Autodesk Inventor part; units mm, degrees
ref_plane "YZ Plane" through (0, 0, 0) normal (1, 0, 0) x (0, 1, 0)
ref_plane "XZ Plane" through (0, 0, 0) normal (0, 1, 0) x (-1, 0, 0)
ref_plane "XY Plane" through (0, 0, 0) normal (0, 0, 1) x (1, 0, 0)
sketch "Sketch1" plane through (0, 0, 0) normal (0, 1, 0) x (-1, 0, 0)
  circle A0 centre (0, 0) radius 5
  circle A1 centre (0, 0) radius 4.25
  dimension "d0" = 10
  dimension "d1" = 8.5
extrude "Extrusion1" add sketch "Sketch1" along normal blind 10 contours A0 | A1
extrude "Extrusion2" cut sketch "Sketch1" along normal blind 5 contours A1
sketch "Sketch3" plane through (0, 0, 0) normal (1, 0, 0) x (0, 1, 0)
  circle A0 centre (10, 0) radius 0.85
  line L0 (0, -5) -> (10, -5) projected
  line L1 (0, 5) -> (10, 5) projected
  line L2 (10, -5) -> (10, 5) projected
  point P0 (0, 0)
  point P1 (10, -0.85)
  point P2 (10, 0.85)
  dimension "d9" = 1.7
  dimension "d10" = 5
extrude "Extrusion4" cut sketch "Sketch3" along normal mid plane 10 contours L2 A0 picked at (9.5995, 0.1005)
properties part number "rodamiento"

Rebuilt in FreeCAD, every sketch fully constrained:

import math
import FreeCAD as App
import Part
import Sketcher
Q = App.Units.Quantity

doc = App.newDocument("Part")
body = doc.addObject("PartDesign::Body", "Body")

sketch1 = doc.addObject("Sketcher::SketchObject", "Sketch")
body.addObject(sketch1)
sketch1.AttachmentSupport = (doc.XZ_Plane, [""])
sketch1.MapMode = "FlatFace"
sketch1.addGeometry(Part.Circle(App.Vector(0, 0, 0), App.Vector(0, 0, 1), 5), False)
sketch1.addConstraint([
    Sketcher.Constraint("Coincident", 0, 3, -1, 1),
    Sketcher.Constraint("Diameter", 0, Q("10 mm")),
])
pad1 = doc.addObject("PartDesign::Pad", "Pad")
body.addObject(pad1)
pad1.Profile = sketch1
pad1.Length = 10
pad1.Reversed = True

sketch2 = doc.addObject("Sketcher::SketchObject", "Sketch001")
body.addObject(sketch2)
sketch2.AttachmentSupport = (doc.XZ_Plane, [""])
sketch2.MapMode = "FlatFace"
sketch2.addGeometry(Part.Circle(App.Vector(0, 0, 0), App.Vector(0, 0, 1), 4.25), False)
sketch2.addConstraint([
    Sketcher.Constraint("Coincident", 0, 3, -1, 1),
    Sketcher.Constraint("Diameter", 0, Q("8.5 mm")),
])
pocket1 = doc.addObject("PartDesign::Pocket", "Pocket")
body.addObject(pocket1)
pocket1.Profile = sketch2
pocket1.Length = 5

sketch3 = doc.addObject("Sketcher::SketchObject", "Sketch002")
body.addObject(sketch3)
sketch3.AttachmentSupport = (doc.YZ_Plane, [""])
sketch3.MapMode = "FlatFace"
sketch3.addGeometry([
    Part.LineSegment(App.Vector(10, -0.85, 0), App.Vector(10, 0.85, 0)),
    Part.ArcOfCircle(Part.Circle(App.Vector(10, 0, 0), App.Vector(0, 0, 1), 0.85), math.radians(90), math.radians(270)),
], False)
sketch3.addConstraint([
    Sketcher.Constraint("Coincident", 0, 1, 1, 2),
    Sketcher.Constraint("Coincident", 1, 1, 0, 2),
    Sketcher.Constraint("Vertical", 0),
    Sketcher.Constraint("PointOnObject", 1, 3, -1),
    Sketcher.Constraint("Vertical", 1, 3, 0, 1),
    Sketcher.Constraint("Radius", 1, Q("0.85 mm")),
    Sketcher.Constraint("DistanceX", -1, 1, 1, 3, Q("10 mm")),
])
pocket2 = doc.addObject("PartDesign::Pocket", "Pocket001")
body.addObject(pocket2)
pocket2.Profile = sketch3
pocket2.Length = 10
pocket2.Midplane = True

doc.recompute()
